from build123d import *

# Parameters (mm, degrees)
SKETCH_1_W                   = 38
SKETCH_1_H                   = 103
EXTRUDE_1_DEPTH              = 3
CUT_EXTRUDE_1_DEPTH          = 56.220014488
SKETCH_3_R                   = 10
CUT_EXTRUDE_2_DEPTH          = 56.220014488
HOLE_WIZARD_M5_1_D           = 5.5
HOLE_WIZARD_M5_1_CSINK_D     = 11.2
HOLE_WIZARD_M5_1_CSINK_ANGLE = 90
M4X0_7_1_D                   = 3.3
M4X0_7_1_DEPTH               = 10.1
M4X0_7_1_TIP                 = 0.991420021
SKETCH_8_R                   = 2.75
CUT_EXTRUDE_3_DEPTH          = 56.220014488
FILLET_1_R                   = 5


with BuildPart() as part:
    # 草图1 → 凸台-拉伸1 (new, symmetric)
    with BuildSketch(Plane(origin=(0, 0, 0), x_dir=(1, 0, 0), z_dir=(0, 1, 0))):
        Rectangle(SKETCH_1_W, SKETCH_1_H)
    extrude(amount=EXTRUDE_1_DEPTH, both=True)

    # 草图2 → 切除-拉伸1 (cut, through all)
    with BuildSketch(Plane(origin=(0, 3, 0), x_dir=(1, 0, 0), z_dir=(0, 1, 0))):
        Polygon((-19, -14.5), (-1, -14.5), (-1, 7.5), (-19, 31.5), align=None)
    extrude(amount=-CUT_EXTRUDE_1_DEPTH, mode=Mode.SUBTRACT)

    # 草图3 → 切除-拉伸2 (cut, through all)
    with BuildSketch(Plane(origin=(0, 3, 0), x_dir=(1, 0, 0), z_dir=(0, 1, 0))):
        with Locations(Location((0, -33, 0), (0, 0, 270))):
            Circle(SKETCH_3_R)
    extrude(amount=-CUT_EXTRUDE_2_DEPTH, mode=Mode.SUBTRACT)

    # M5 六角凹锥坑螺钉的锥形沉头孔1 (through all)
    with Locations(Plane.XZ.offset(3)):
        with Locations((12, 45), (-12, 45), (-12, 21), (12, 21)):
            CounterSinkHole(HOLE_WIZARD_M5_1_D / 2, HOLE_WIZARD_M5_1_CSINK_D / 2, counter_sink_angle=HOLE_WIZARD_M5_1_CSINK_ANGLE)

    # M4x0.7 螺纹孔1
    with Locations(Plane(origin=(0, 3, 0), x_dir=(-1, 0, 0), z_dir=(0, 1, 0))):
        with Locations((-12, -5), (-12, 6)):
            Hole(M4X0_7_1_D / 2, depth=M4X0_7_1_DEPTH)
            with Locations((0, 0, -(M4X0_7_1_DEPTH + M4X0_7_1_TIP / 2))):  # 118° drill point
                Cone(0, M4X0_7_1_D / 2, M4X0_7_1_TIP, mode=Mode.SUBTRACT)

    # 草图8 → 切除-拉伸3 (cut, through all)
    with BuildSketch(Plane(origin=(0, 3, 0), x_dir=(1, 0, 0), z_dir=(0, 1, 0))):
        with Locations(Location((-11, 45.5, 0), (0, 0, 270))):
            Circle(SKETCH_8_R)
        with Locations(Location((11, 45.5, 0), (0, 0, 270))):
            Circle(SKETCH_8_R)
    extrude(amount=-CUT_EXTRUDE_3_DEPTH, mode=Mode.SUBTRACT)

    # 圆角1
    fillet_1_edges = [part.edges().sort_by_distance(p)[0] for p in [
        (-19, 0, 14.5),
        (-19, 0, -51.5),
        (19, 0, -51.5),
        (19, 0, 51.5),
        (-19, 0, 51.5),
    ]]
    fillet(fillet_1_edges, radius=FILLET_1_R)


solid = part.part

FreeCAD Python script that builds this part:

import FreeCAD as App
import Part
import Sketcher


def edges_at(feature, points):
    """Names of the edges that pass closest to the given points."""
    edges = feature.Shape.Edges
    near = lambda p: min(range(len(edges)), key=lambda i: edges[i].distToShape(Part.Vertex(*p))[0])
    return sorted({f"Edge{near(p) + 1}" for p in points})


def add_polygon(sketch, points):
    """Adds a closed chain of lines whose ends are joined by coincident constraints."""
    first, n = sketch.GeometryCount, len(points)
    for a, b in zip(points, points[1:] + points[:1]):
        sketch.addGeometry(Part.LineSegment(App.Vector(*a, 0), App.Vector(*b, 0)), False)
    for i in range(n):
        sketch.addConstraint(Sketcher.Constraint("Coincident", first + i, 2, first + (i + 1) % n, 1))

doc = App.newDocument("Part")
body = doc.addObject("PartDesign::Body", "Body")

# Sketch on XZ plane
sketch1 = body.newObject("Sketcher::SketchObject", "Sketch")
sketch1.AttachmentSupport = (doc.getObject("XZ_Plane"), [""])
sketch1.MapMode = "FlatFace"
add_polygon(sketch1, [(-19, -52), (-19, 52), (19, 52), (19, -52)])  # lines 0-3
sketch1.addConstraint(Sketcher.Constraint("Vertical", 0))
sketch1.addConstraint(Sketcher.Constraint("Horizontal", 1))
sketch1.addConstraint(Sketcher.Constraint("Vertical", 2))
sketch1.addConstraint(Sketcher.Constraint("Horizontal", 3))
sketch1.addConstraint(Sketcher.Constraint("Symmetric", 0, 2, 2, 2, -1, 1))
sketch1.addConstraint(Sketcher.Constraint("DistanceX", 1, 1, 1, 2, 38.0))
sketch1.addConstraint(Sketcher.Constraint("DistanceY", 0, 1, 0, 2, 103.0))
pad1 = body.newObject("PartDesign::Pad", "Pad")
pad1.Profile = sketch1
pad1.Length = 6
pad1.Midplane = True

# Sketch on XZ plane
sketch2 = body.newObject("Sketcher::SketchObject", "Sketch001")
sketch2.AttachmentSupport = (doc.getObject("XZ_Plane"), [""])
sketch2.MapMode = "FlatFace"
sketch2.AttachmentOffset = App.Placement(App.Vector(0, 0, -3), App.Rotation())
add_polygon(sketch2, [(-19, 14), (-1, 14), (-1, -8), (-19, -32)])  # lines 0-3
sketch2.addConstraint(Sketcher.Constraint("Horizontal", 0))
sketch2.addConstraint(Sketcher.Constraint("Vertical", 1))
sketch2.addConstraint(Sketcher.Constraint("Vertical", 3))
sketch2.addConstraint(Sketcher.Constraint("DistanceX", 0, 1, 0, 2, 18.0))
sketch2.addConstraint(Sketcher.Constraint("DistanceY", 1, 2, 1, 1, 22.0))
sketch2.addConstraint(Sketcher.Constraint("DistanceY", 3, 1, 3, 2, 46.0))
sketch2.addConstraint(Sketcher.Constraint("DistanceX", 0, 2, -1, 1, 1.0))
sketch2.addConstraint(Sketcher.Constraint("DistanceY", -1, 1, 0, 2, 14.5))
pocket1 = body.newObject("PartDesign::Pocket", "Pocket")
pocket1.Profile = sketch2
pocket1.Type = "ThroughAll"
pocket1.Reversed = True

# Sketch on XZ plane
sketch3 = body.newObject("Sketcher::SketchObject", "Sketch002")
sketch3.AttachmentSupport = (doc.getObject("XZ_Plane"), [""])
sketch3.MapMode = "FlatFace"
sketch3.AttachmentOffset = App.Placement(App.Vector(0, 0, -3), App.Rotation())
sketch3.addGeometry(Part.Circle(App.Vector(0, 33, 0), App.Vector(0, 0, 1), 10), False)
sketch3.addConstraint(Sketcher.Constraint("PointOnObject", 0, 3, -2))
sketch3.addConstraint(Sketcher.Constraint("Diameter", 0, 20.0))
sketch3.addConstraint(Sketcher.Constraint("DistanceY", -1, 1, 0, 3, 33.0))
pocket2 = body.newObject("PartDesign::Pocket", "Pocket001")
pocket2.Profile = sketch3
pocket2.Type = "ThroughAll"
pocket2.Reversed = True

# Sketch on XZ plane
sketch4 = body.newObject("Sketcher::SketchObject", "Sketch003")
sketch4.AttachmentSupport = (doc.getObject("XZ_Plane"), [""])
sketch4.MapMode = "FlatFace"
sketch4.AttachmentOffset = App.Placement(App.Vector(0, 0, 3), App.Rotation())
sketch4.addGeometry(Part.Circle(App.Vector(12, 45, 0), App.Vector(0, 0, 1), 2.8), False)
sketch4.addGeometry(Part.Circle(App.Vector(-12, 45, 0), App.Vector(0, 0, 1), 2.8), False)
sketch4.addGeometry(Part.Circle(App.Vector(-12, 21, 0), App.Vector(0, 0, 1), 2.8), False)
sketch4.addGeometry(Part.Circle(App.Vector(12, 21, 0), App.Vector(0, 0, 1), 2.8), False)
sketch4.addConstraint(Sketcher.Constraint("Equal", 0, 1))
sketch4.addConstraint(Sketcher.Constraint("Equal", 1, 2))
sketch4.addConstraint(Sketcher.Constraint("Equal", 2, 3))
sketch4.addConstraint(Sketcher.Constraint("Symmetric", 0, 3, 1, 3, -2))
sketch4.addConstraint(Sketcher.Constraint("Symmetric", 2, 3, 3, 3, -2))
sketch4.addConstraint(Sketcher.Constraint("Vertical", 1, 3, 2, 3))
sketch4.addConstraint(Sketcher.Constraint("Diameter", 0, 5.5))
sketch4.addConstraint(Sketcher.Constraint("DistanceX", -1, 1, 0, 3, 12.0))
sketch4.addConstraint(Sketcher.Constraint("DistanceY", -1, 1, 0, 3, 45.0))
sketch4.addConstraint(Sketcher.Constraint("DistanceY", -1, 1, 2, 3, 21.0))
doc.recompute()
hole = body.newObject("PartDesign::Hole", "Hole")
hole.Profile = sketch4
hole.ThreadType = "None"
hole.Diameter = 5.5
hole.DepthType = "ThroughAll"
hole.HoleCutType = "Countersink"
hole.HoleCutDiameter = 11.2
hole.HoleCutCountersinkAngle = 90

# Sketch on XZ plane
sketch5 = body.newObject("Sketcher::SketchObject", "Sketch004")
sketch5.AttachmentSupport = (doc.getObject("XZ_Plane"), [""])
sketch5.MapMode = "FlatFace"
sketch5.AttachmentOffset = App.Placement(App.Vector(0, 0, -3), App.Rotation())
sketch5.addGeometry(Part.Circle(App.Vector(12, -5, 0), App.Vector(0, 0, 1), 1.6), False)
sketch5.addGeometry(Part.Circle(App.Vector(12, 6, 0), App.Vector(0, 0, 1), 1.6), False)
sketch5.addConstraint(Sketcher.Constraint("Equal", 0, 1))
sketch5.addConstraint(Sketcher.Constraint("Vertical", 0, 3, 1, 3))
sketch5.addConstraint(Sketcher.Constraint("Diameter", 0, 3.3))
sketch5.addConstraint(Sketcher.Constraint("DistanceX", -1, 1, 0, 3, 12.0))
sketch5.addConstraint(Sketcher.Constraint("DistanceY", 0, 3, -1, 1, 5.0))
sketch5.addConstraint(Sketcher.Constraint("DistanceY", -1, 1, 1, 3, 6.0))
doc.recompute()
hole2 = body.newObject("PartDesign::Hole", "Hole001")
hole2.Profile = sketch5
hole2.ThreadType = "None"
hole2.Diameter = 3.3
hole2.DepthType = "Dimension"
hole2.Depth = 10.1
hole2.DrillPoint = "Angled"
hole2.DrillPointAngle = 118
hole2.Reversed = True

# Sketch on XZ plane
sketch6 = body.newObject("Sketcher::SketchObject", "Sketch005")
sketch6.AttachmentSupport = (doc.getObject("XZ_Plane"), [""])
sketch6.MapMode = "FlatFace"
sketch6.AttachmentOffset = App.Placement(App.Vector(0, 0, -3), App.Rotation())
sketch6.addGeometry(Part.Circle(App.Vector(-11, -45.5, 0), App.Vector(0, 0, 1), 2.8), False)
sketch6.addGeometry(Part.Circle(App.Vector(11, -45.5, 0), App.Vector(0, 0, 1), 2.8), False)
sketch6.addConstraint(Sketcher.Constraint("Equal", 0, 1))
sketch6.addConstraint(Sketcher.Constraint("Symmetric", 0, 3, 1, 3, -2))
sketch6.addConstraint(Sketcher.Constraint("Diameter", 0, 5.5))
sketch6.addConstraint(Sketcher.Constraint("DistanceX", 0, 3, -1, 1, 11.0))
sketch6.addConstraint(Sketcher.Constraint("DistanceY", 0, 3, -1, 1, 45.5))
pocket3 = body.newObject("PartDesign::Pocket", "Pocket002")
pocket3.Profile = sketch6
pocket3.Type = "ThroughAll"
pocket3.Reversed = True
doc.recompute()

fillet = body.newObject("PartDesign::Fillet", "Fillet")
fillet.Base = (pocket3, edges_at(pocket3, [
    (-19, 0, 14.5),
    (-19, 0, -51.5),
    (19, 0, -51.5),
    (19, 0, 51.5),
    (-19, 0, 51.5),
]))
fillet.Radius = 5

doc.recompute()
